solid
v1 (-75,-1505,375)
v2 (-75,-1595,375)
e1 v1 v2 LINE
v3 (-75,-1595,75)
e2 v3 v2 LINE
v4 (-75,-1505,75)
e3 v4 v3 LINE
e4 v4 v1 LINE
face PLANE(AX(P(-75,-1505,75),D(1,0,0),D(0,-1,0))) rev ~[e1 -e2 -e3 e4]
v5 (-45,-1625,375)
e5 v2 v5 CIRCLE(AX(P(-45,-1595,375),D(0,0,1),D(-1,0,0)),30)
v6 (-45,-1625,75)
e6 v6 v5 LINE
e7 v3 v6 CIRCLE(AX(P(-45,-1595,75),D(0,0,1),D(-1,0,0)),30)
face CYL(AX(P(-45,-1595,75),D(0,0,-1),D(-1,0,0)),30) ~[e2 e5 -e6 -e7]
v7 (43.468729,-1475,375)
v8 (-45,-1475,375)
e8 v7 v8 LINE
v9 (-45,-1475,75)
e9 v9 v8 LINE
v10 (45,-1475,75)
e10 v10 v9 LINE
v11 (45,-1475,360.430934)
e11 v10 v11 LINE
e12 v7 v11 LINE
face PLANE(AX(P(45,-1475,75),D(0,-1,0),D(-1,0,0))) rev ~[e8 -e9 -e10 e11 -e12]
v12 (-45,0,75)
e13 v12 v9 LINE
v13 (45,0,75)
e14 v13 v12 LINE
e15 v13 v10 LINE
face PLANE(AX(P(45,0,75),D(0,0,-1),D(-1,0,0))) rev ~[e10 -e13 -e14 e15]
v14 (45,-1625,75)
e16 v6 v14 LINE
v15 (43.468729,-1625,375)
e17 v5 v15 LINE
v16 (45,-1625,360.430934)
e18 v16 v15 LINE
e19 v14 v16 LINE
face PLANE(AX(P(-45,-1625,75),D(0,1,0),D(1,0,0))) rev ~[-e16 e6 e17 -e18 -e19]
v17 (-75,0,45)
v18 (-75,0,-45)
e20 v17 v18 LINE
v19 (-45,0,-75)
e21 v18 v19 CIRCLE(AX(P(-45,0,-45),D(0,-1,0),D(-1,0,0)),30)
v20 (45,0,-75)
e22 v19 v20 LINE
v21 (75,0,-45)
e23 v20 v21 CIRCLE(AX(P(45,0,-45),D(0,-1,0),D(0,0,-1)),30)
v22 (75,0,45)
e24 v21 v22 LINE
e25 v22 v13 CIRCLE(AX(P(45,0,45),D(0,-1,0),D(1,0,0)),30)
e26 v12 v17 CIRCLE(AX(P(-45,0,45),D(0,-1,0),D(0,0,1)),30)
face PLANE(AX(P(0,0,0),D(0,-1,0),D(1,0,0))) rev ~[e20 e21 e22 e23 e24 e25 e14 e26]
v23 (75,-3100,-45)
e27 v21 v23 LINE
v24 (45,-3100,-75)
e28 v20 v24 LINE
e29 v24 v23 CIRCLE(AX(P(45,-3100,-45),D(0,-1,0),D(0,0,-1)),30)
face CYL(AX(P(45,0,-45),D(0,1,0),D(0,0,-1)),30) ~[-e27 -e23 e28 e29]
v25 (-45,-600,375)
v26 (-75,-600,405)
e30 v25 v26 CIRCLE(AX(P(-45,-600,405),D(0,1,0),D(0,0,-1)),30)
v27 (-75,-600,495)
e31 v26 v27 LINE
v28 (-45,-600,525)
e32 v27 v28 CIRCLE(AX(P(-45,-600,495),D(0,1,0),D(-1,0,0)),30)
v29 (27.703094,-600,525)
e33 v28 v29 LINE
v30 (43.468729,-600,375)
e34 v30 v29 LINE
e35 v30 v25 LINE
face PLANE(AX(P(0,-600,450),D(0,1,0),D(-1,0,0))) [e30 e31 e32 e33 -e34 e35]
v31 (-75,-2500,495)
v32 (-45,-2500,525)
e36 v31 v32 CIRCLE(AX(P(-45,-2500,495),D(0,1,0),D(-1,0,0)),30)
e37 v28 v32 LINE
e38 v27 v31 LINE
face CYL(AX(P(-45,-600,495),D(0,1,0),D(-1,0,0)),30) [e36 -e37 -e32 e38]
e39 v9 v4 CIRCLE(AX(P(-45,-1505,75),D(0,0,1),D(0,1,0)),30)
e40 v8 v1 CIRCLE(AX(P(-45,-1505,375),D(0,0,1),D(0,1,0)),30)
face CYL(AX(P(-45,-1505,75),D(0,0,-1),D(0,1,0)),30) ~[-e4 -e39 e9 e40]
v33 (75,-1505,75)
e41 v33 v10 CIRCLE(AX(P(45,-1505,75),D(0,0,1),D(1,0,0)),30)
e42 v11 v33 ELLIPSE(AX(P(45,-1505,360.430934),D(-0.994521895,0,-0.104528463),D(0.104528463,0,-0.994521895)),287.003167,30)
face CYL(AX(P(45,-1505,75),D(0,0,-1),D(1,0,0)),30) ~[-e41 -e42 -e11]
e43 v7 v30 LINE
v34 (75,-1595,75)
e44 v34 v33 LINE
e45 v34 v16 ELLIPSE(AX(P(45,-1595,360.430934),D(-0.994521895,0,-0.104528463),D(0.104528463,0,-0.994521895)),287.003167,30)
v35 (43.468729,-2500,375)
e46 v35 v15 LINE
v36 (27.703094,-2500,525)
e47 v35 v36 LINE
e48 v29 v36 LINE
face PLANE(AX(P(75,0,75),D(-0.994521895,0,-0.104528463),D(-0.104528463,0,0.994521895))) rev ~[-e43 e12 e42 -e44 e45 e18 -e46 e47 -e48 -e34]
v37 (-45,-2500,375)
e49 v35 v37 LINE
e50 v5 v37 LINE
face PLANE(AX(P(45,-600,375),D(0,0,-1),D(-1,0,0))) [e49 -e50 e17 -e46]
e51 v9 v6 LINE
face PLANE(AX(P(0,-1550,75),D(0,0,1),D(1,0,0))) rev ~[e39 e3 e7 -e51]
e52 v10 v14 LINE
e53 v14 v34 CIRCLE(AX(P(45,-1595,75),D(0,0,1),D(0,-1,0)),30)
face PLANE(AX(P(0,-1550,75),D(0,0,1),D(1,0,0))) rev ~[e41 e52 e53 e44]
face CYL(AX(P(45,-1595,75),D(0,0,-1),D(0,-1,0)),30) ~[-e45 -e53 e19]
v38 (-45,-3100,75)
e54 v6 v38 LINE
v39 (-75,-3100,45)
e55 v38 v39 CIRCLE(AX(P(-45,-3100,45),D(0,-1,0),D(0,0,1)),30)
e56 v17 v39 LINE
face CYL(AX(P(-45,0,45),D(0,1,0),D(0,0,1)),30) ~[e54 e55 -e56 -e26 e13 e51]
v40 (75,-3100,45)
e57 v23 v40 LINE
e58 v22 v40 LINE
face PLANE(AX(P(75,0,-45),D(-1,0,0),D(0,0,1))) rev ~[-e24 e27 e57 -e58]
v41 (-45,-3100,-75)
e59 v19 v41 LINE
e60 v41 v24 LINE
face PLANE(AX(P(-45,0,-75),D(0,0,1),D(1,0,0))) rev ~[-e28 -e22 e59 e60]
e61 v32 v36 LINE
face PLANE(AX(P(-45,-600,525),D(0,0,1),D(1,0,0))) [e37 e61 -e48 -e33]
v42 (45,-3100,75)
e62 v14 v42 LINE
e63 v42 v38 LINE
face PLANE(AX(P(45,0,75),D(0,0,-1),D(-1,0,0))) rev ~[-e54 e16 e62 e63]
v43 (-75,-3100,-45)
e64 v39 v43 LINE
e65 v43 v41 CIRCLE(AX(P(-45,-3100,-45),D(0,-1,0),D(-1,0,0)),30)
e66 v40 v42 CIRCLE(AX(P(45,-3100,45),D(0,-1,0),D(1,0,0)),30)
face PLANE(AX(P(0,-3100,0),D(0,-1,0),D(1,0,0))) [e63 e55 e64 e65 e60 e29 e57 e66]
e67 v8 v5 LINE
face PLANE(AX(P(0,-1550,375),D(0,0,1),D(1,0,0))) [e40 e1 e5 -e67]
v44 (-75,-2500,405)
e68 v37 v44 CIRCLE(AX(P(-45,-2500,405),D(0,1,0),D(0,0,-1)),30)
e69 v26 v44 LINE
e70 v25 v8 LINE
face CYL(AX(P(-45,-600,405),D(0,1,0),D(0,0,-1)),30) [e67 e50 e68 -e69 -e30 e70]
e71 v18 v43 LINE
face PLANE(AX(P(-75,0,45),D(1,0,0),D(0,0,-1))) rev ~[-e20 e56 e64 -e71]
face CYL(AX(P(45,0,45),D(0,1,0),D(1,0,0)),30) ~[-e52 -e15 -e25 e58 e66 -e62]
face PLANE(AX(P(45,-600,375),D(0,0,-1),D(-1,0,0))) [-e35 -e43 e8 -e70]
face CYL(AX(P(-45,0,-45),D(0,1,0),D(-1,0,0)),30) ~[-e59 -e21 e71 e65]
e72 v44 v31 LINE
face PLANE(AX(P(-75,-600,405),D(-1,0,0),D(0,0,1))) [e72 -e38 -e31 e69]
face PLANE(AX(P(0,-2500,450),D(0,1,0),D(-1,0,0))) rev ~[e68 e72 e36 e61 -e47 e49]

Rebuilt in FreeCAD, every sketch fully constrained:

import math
import FreeCAD as App
import Part
import Sketcher

V = App.Vector
Q = App.Units.Quantity


def add_polygon(sketch, points):
    """Adds a closed chain of lines whose ends are joined by coincident constraints."""
    first, n = sketch.GeometryCount, len(points)
    for a, b in zip(points, points[1:] + points[:1]):
        sketch.addGeometry(Part.LineSegment(App.Vector(*a, 0), App.Vector(*b, 0)), False)
    for i in range(n):
        sketch.addConstraint(Sketcher.Constraint("Coincident", first + i, 2, first + (i + 1) % n, 1))

doc = App.newDocument("Part")
body = doc.addObject("PartDesign::Body", "Body")

sketch1 = body.newObject("Sketcher::SketchObject", "Sketch")
sketch1.AttachmentSupport = (doc.getObject("XZ_Plane"), [""])
sketch1.MapMode = "FlatFace"
sketch1.addGeometry([
    Part.ArcOfCircle(Part.Circle(V(45, 45, 0), V(0, 0, 1), 30), math.radians(0), math.radians(90)),
    Part.LineSegment(V(45, 75, 0), V(-45, 75, 0)),
    Part.ArcOfCircle(Part.Circle(V(-45, 45, 0), V(0, 0, 1), 30), math.radians(90), math.radians(180)),
    Part.LineSegment(V(-75, 45, 0), V(-75, -45, 0)),
    Part.ArcOfCircle(Part.Circle(V(-45, -45, 0), V(0, 0, 1), 30), math.radians(180), math.radians(270)),
    Part.LineSegment(V(-45, -75, 0), V(45, -75, 0)),
    Part.ArcOfCircle(Part.Circle(V(45, -45, 0), V(0, 0, 1), 30), math.radians(-90), math.radians(0)),
    Part.LineSegment(V(75, -45, 0), V(75, 45, 0)),
], False)
sketch1.addConstraint([
    Sketcher.Constraint("Tangent", 0, 2, 1, 1),
    Sketcher.Constraint("Tangent", 1, 2, 2, 1),
    Sketcher.Constraint("Tangent", 2, 2, 3, 1),
    Sketcher.Constraint("Tangent", 3, 2, 4, 1),
    Sketcher.Constraint("Tangent", 4, 2, 5, 1),
    Sketcher.Constraint("Tangent", 5, 2, 6, 1),
    Sketcher.Constraint("Tangent", 6, 2, 7, 1),
    Sketcher.Constraint("Tangent", 7, 2, 0, 1),
    Sketcher.Constraint("Horizontal", 1),
    Sketcher.Constraint("Vertical", 3),
    Sketcher.Constraint("Horizontal", 5),
    Sketcher.Constraint("Vertical", 7),
    Sketcher.Constraint("Equal", 0, 2),
    Sketcher.Constraint("Equal", 2, 4),
    Sketcher.Constraint("Equal", 4, 6),
    Sketcher.Constraint("Symmetric", 0, 3, 4, 3, -1, 1),
    Sketcher.Constraint("Equal", 5, 3),
    Sketcher.Constraint("Radius", 0, 30.0),
    Sketcher.Constraint("DistanceX", 1, 2, 1, 1, 90.0),
])
pad1 = body.newObject("PartDesign::Pad", "Pad")
pad1.Profile = sketch1
pad1.Length = 3100
body2 = doc.addObject("PartDesign::Body", "Body001")

sketch2 = body2.newObject("Sketcher::SketchObject", "Sketch001")
sketch2.AttachmentSupport = (doc.getObject("XZ_Plane001"), [""])
sketch2.MapMode = "FlatFace"
sketch2.AttachmentOffset = App.Placement(V(0, 0, 600), App.Rotation())
sketch2.addGeometry([
    Part.ArcOfCircle(Part.Circle(V(-45, 495, 0), V(0, 0, 1), 30), math.radians(90), math.radians(180)),
    Part.LineSegment(V(-45, 525, 0), V(45, 525, 0)),
    Part.ArcOfCircle(Part.Circle(V(45, 495, 0), V(0, 0, 1), 30), math.radians(0), math.radians(90)),
    Part.LineSegment(V(75, 495, 0), V(75, 405, 0)),
    Part.ArcOfCircle(Part.Circle(V(45, 405, 0), V(0, 0, 1), 30), math.radians(-90), math.radians(0)),
    Part.LineSegment(V(45, 375, 0), V(-45, 375, 0)),
    Part.ArcOfCircle(Part.Circle(V(-45, 405, 0), V(0, 0, 1), 30), math.radians(180), math.radians(270)),
    Part.LineSegment(V(-75, 405, 0), V(-75, 495, 0)),
], False)
sketch2.addConstraint([
    Sketcher.Constraint("Tangent", 0, 1, 1, 1),
    Sketcher.Constraint("Tangent", 1, 2, 2, 2),
    Sketcher.Constraint("Tangent", 2, 1, 3, 1),
    Sketcher.Constraint("Tangent", 3, 2, 4, 2),
    Sketcher.Constraint("Tangent", 4, 1, 5, 1),
    Sketcher.Constraint("Tangent", 5, 2, 6, 2),
    Sketcher.Constraint("Tangent", 6, 1, 7, 1),
    Sketcher.Constraint("Tangent", 7, 2, 0, 2),
    Sketcher.Constraint("Horizontal", 1),
    Sketcher.Constraint("Vertical", 3),
    Sketcher.Constraint("Horizontal", 5),
    Sketcher.Constraint("Vertical", 7),
    Sketcher.Constraint("Equal", 0, 2),
    Sketcher.Constraint("Equal", 2, 4),
    Sketcher.Constraint("Equal", 4, 6),
    Sketcher.Constraint("Equal", 5, 3),
    Sketcher.Constraint("Radius", 0, 30.0),
    Sketcher.Constraint("DistanceX", 1, 1, 1, 2, 90.0),
    Sketcher.Constraint("DistanceX", 0, 3, -1, 1, 45.0),
    Sketcher.Constraint("DistanceY", -1, 1, 0, 3, 495.0),
])
pad2 = body2.newObject("PartDesign::Pad", "Pad001")
pad2.Profile = sketch2
pad2.Length = 1900
body.AllowCompound = True
doc.recompute()

boolean = body.newObject("PartDesign::Boolean", "Boolean")
boolean.Type = "Fuse"
boolean.addObjects([body2])

sketch3 = body.newObject("Sketcher::SketchObject", "Sketch002")
sketch3.AttachmentSupport = (doc.getObject("XY_Plane"), [""])
sketch3.MapMode = "FlatFace"
sketch3.AttachmentOffset = App.Placement(V(0, 0, 75), App.Rotation())
sketch3.addGeometry([
    Part.ArcOfCircle(Part.Circle(V(-45, -1595, 0), V(0, 0, 1), 30), math.radians(180), math.radians(270)),
    Part.LineSegment(V(-45, -1625, 0), V(45, -1625, 0)),
    Part.ArcOfCircle(Part.Circle(V(45, -1595, 0), V(0, 0, 1), 30), math.radians(-90), math.radians(0)),
    Part.LineSegment(V(75, -1595, 0), V(75, -1505, 0)),
    Part.ArcOfCircle(Part.Circle(V(45, -1505, 0), V(0, 0, 1), 30), math.radians(0), math.radians(90)),
    Part.LineSegment(V(45, -1475, 0), V(-45, -1475, 0)),
    Part.ArcOfCircle(Part.Circle(V(-45, -1505, 0), V(0, 0, 1), 30), math.radians(90), math.radians(180)),
    Part.LineSegment(V(-75, -1505, 0), V(-75, -1595, 0)),
], False)
sketch3.addConstraint([
    Sketcher.Constraint("Tangent", 0, 2, 1, 1),
    Sketcher.Constraint("Tangent", 1, 2, 2, 1),
    Sketcher.Constraint("Tangent", 2, 2, 3, 1),
    Sketcher.Constraint("Tangent", 3, 2, 4, 1),
    Sketcher.Constraint("Tangent", 4, 2, 5, 1),
    Sketcher.Constraint("Tangent", 5, 2, 6, 1),
    Sketcher.Constraint("Tangent", 6, 2, 7, 1),
    Sketcher.Constraint("Tangent", 7, 2, 0, 1),
    Sketcher.Constraint("Horizontal", 1),
    Sketcher.Constraint("Vertical", 3),
    Sketcher.Constraint("Horizontal", 5),
    Sketcher.Constraint("Vertical", 7),
    Sketcher.Constraint("Equal", 0, 2),
    Sketcher.Constraint("Equal", 2, 4),
    Sketcher.Constraint("Equal", 4, 6),
    Sketcher.Constraint("Equal", 5, 3),
    Sketcher.Constraint("Radius", 0, 30.0),
    Sketcher.Constraint("DistanceX", 1, 1, 1, 2, 90.0),
    Sketcher.Constraint("DistanceX", 0, 3, -1, 1, 45.0),
    Sketcher.Constraint("DistanceY", 0, 3, -1, 1, 1595.0),
])
pad3 = body.newObject("PartDesign::Pad", "Pad002")
pad3.Profile = sketch3
pad3.Length = 300

sketch4 = body.newObject("Sketcher::SketchObject", "Sketch003")
sketch4.AttachmentSupport = (doc.getObject("XZ_Plane"), [""])
sketch4.MapMode = "FlatFace"
add_polygon(sketch4, [(75, 75), (27.703094, 525), (204.013072, 525), (204.013072, 75)])
sketch4.addConstraint([
    Sketcher.Constraint("Horizontal", 1),
    Sketcher.Constraint("Vertical", 2),
    Sketcher.Constraint("Horizontal", 3),
    Sketcher.Constraint("DistanceY", 2, 2, 2, 1, 450.0),
    Sketcher.Constraint("Angle", 0, Q("96 deg")),
    Sketcher.Constraint("DistanceY", -1, 1, 0, 2, 525.0),
    Sketcher.Constraint("DistanceX", -1, 1, 3, 2, 75.0),
    Sketcher.Constraint("DistanceX", 3, 2, 3, 1, 129.013072),
])
pocket1 = body.newObject("PartDesign::Pocket", "Pocket")
pocket1.Profile = sketch4
pocket1.Length = 3500
pocket1.Reversed = True

doc.recompute()
